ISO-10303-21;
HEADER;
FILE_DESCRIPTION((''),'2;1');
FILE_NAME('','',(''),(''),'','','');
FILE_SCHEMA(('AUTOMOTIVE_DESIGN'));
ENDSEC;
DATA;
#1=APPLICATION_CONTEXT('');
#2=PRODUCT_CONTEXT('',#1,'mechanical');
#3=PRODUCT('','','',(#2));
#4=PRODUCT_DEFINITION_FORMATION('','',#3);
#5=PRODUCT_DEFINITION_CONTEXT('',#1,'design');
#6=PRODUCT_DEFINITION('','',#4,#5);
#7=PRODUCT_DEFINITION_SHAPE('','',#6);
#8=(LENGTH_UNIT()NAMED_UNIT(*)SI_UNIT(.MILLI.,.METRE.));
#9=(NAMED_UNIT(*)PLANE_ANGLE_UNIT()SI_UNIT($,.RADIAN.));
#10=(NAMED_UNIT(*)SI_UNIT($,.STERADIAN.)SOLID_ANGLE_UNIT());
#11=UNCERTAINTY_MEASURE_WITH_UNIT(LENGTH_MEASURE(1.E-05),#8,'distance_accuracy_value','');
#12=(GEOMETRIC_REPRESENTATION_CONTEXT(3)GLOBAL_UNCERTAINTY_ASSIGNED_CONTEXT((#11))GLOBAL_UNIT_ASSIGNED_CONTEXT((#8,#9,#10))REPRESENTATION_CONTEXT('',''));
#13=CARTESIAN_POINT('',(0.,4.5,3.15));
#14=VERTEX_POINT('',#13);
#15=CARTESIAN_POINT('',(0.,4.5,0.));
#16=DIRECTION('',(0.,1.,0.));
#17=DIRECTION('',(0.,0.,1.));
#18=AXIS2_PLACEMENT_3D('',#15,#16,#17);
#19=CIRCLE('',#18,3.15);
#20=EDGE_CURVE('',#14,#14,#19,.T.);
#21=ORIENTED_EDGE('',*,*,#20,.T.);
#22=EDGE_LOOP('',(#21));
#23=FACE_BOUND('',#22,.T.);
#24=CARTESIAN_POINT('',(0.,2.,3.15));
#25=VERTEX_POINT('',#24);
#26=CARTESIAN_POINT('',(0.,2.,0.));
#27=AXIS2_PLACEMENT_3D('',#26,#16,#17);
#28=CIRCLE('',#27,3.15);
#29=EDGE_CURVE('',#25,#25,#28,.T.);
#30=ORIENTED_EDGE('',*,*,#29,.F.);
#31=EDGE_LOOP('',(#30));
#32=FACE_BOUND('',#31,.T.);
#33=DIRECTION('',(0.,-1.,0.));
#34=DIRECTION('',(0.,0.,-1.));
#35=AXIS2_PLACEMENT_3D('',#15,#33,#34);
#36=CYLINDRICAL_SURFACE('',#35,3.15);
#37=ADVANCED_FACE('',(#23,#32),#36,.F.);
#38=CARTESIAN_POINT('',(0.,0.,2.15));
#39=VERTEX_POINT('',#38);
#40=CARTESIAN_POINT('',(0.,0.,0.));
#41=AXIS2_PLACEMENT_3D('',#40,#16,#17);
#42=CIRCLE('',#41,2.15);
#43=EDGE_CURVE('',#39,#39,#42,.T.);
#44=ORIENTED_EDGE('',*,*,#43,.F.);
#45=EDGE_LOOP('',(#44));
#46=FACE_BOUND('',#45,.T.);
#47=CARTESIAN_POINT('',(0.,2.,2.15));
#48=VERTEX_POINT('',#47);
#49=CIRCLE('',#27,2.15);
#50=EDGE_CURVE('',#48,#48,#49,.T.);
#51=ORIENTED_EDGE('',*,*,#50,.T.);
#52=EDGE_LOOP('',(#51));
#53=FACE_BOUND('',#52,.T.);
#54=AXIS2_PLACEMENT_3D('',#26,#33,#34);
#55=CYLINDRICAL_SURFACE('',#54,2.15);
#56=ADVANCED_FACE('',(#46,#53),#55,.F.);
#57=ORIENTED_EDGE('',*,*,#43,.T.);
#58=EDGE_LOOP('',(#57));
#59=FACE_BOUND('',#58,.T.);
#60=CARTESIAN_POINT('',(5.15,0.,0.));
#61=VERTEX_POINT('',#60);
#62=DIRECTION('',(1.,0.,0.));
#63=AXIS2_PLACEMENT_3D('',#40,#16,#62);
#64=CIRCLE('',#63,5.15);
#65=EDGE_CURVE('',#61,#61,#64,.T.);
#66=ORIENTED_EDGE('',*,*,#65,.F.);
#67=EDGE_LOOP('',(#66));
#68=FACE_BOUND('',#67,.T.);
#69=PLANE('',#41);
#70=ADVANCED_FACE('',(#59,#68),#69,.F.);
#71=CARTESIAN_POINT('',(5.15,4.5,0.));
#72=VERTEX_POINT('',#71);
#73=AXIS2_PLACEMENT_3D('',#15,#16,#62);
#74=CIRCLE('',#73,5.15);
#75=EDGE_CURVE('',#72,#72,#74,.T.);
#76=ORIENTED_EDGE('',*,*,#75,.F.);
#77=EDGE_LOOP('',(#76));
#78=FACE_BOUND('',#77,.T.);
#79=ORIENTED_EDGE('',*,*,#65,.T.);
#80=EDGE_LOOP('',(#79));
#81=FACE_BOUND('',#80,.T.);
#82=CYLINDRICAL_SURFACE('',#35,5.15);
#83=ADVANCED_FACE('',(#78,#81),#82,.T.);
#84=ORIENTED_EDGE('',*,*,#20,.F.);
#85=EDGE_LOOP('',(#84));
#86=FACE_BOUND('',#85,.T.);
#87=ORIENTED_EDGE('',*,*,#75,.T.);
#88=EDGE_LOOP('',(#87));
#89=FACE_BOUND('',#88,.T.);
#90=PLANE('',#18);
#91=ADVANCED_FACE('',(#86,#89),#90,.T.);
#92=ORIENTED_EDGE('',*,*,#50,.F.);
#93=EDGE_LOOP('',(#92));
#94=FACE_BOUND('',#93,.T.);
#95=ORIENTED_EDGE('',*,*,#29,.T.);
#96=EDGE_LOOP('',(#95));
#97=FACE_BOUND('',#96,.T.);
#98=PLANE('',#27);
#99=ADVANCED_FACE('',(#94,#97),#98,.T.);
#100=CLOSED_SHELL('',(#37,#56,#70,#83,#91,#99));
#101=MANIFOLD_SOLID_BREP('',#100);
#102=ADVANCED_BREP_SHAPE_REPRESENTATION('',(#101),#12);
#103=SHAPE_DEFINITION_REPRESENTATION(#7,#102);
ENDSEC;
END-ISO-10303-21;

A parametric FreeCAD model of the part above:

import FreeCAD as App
import Part
import Sketcher

V = App.Vector

doc = App.newDocument("Part")
body = doc.addObject("PartDesign::Body", "Body")

# Sketch on XZ plane
sketch1 = body.newObject("Sketcher::SketchObject", "Sketch")
sketch1.AttachmentSupport = (doc.getObject("XZ_Plane"), [""])
sketch1.MapMode = "FlatFace"
sketch1.addGeometry([
    Part.Circle(V(0, 0, 0), V(0, 0, 1), 5.2),
    Part.Circle(V(0, 0, 0), V(0, 0, 1), 3.1),
], False)
sketch1.addConstraint([
    Sketcher.Constraint("Coincident", 0, 3, -1, 1),
    Sketcher.Constraint("Coincident", 1, 3, -1, 1),
    Sketcher.Constraint("Diameter", 0, 10.3),
    Sketcher.Constraint("Diameter", 1, 6.3),
])
pad1 = body.newObject("PartDesign::Pad", "Pad")
pad1.Profile = sketch1
pad1.Length = 4.5
pad1.Reversed = True

# Sketch on XZ plane
sketch2 = body.newObject("Sketcher::SketchObject", "Sketch001")
sketch2.AttachmentSupport = (doc.getObject("XZ_Plane"), [""])
sketch2.MapMode = "FlatFace"
sketch2.addGeometry([
    Part.Circle(V(0, 0, 0), V(0, 0, 1), 3.1),
    Part.Circle(V(0, 0, 0), V(0, 0, 1), 2.1),
], False)
sketch2.addConstraint([
    Sketcher.Constraint("Coincident", 0, 3, -1, 1),
    Sketcher.Constraint("Coincident", 1, 3, -1, 1),
    Sketcher.Constraint("Diameter", 0, 6.3),
    Sketcher.Constraint("Diameter", 1, 4.3),
])
pad2 = body.newObject("PartDesign::Pad", "Pad001")
pad2.Profile = sketch2
pad2.Length = 2
pad2.Reversed = True

doc.recompute()
